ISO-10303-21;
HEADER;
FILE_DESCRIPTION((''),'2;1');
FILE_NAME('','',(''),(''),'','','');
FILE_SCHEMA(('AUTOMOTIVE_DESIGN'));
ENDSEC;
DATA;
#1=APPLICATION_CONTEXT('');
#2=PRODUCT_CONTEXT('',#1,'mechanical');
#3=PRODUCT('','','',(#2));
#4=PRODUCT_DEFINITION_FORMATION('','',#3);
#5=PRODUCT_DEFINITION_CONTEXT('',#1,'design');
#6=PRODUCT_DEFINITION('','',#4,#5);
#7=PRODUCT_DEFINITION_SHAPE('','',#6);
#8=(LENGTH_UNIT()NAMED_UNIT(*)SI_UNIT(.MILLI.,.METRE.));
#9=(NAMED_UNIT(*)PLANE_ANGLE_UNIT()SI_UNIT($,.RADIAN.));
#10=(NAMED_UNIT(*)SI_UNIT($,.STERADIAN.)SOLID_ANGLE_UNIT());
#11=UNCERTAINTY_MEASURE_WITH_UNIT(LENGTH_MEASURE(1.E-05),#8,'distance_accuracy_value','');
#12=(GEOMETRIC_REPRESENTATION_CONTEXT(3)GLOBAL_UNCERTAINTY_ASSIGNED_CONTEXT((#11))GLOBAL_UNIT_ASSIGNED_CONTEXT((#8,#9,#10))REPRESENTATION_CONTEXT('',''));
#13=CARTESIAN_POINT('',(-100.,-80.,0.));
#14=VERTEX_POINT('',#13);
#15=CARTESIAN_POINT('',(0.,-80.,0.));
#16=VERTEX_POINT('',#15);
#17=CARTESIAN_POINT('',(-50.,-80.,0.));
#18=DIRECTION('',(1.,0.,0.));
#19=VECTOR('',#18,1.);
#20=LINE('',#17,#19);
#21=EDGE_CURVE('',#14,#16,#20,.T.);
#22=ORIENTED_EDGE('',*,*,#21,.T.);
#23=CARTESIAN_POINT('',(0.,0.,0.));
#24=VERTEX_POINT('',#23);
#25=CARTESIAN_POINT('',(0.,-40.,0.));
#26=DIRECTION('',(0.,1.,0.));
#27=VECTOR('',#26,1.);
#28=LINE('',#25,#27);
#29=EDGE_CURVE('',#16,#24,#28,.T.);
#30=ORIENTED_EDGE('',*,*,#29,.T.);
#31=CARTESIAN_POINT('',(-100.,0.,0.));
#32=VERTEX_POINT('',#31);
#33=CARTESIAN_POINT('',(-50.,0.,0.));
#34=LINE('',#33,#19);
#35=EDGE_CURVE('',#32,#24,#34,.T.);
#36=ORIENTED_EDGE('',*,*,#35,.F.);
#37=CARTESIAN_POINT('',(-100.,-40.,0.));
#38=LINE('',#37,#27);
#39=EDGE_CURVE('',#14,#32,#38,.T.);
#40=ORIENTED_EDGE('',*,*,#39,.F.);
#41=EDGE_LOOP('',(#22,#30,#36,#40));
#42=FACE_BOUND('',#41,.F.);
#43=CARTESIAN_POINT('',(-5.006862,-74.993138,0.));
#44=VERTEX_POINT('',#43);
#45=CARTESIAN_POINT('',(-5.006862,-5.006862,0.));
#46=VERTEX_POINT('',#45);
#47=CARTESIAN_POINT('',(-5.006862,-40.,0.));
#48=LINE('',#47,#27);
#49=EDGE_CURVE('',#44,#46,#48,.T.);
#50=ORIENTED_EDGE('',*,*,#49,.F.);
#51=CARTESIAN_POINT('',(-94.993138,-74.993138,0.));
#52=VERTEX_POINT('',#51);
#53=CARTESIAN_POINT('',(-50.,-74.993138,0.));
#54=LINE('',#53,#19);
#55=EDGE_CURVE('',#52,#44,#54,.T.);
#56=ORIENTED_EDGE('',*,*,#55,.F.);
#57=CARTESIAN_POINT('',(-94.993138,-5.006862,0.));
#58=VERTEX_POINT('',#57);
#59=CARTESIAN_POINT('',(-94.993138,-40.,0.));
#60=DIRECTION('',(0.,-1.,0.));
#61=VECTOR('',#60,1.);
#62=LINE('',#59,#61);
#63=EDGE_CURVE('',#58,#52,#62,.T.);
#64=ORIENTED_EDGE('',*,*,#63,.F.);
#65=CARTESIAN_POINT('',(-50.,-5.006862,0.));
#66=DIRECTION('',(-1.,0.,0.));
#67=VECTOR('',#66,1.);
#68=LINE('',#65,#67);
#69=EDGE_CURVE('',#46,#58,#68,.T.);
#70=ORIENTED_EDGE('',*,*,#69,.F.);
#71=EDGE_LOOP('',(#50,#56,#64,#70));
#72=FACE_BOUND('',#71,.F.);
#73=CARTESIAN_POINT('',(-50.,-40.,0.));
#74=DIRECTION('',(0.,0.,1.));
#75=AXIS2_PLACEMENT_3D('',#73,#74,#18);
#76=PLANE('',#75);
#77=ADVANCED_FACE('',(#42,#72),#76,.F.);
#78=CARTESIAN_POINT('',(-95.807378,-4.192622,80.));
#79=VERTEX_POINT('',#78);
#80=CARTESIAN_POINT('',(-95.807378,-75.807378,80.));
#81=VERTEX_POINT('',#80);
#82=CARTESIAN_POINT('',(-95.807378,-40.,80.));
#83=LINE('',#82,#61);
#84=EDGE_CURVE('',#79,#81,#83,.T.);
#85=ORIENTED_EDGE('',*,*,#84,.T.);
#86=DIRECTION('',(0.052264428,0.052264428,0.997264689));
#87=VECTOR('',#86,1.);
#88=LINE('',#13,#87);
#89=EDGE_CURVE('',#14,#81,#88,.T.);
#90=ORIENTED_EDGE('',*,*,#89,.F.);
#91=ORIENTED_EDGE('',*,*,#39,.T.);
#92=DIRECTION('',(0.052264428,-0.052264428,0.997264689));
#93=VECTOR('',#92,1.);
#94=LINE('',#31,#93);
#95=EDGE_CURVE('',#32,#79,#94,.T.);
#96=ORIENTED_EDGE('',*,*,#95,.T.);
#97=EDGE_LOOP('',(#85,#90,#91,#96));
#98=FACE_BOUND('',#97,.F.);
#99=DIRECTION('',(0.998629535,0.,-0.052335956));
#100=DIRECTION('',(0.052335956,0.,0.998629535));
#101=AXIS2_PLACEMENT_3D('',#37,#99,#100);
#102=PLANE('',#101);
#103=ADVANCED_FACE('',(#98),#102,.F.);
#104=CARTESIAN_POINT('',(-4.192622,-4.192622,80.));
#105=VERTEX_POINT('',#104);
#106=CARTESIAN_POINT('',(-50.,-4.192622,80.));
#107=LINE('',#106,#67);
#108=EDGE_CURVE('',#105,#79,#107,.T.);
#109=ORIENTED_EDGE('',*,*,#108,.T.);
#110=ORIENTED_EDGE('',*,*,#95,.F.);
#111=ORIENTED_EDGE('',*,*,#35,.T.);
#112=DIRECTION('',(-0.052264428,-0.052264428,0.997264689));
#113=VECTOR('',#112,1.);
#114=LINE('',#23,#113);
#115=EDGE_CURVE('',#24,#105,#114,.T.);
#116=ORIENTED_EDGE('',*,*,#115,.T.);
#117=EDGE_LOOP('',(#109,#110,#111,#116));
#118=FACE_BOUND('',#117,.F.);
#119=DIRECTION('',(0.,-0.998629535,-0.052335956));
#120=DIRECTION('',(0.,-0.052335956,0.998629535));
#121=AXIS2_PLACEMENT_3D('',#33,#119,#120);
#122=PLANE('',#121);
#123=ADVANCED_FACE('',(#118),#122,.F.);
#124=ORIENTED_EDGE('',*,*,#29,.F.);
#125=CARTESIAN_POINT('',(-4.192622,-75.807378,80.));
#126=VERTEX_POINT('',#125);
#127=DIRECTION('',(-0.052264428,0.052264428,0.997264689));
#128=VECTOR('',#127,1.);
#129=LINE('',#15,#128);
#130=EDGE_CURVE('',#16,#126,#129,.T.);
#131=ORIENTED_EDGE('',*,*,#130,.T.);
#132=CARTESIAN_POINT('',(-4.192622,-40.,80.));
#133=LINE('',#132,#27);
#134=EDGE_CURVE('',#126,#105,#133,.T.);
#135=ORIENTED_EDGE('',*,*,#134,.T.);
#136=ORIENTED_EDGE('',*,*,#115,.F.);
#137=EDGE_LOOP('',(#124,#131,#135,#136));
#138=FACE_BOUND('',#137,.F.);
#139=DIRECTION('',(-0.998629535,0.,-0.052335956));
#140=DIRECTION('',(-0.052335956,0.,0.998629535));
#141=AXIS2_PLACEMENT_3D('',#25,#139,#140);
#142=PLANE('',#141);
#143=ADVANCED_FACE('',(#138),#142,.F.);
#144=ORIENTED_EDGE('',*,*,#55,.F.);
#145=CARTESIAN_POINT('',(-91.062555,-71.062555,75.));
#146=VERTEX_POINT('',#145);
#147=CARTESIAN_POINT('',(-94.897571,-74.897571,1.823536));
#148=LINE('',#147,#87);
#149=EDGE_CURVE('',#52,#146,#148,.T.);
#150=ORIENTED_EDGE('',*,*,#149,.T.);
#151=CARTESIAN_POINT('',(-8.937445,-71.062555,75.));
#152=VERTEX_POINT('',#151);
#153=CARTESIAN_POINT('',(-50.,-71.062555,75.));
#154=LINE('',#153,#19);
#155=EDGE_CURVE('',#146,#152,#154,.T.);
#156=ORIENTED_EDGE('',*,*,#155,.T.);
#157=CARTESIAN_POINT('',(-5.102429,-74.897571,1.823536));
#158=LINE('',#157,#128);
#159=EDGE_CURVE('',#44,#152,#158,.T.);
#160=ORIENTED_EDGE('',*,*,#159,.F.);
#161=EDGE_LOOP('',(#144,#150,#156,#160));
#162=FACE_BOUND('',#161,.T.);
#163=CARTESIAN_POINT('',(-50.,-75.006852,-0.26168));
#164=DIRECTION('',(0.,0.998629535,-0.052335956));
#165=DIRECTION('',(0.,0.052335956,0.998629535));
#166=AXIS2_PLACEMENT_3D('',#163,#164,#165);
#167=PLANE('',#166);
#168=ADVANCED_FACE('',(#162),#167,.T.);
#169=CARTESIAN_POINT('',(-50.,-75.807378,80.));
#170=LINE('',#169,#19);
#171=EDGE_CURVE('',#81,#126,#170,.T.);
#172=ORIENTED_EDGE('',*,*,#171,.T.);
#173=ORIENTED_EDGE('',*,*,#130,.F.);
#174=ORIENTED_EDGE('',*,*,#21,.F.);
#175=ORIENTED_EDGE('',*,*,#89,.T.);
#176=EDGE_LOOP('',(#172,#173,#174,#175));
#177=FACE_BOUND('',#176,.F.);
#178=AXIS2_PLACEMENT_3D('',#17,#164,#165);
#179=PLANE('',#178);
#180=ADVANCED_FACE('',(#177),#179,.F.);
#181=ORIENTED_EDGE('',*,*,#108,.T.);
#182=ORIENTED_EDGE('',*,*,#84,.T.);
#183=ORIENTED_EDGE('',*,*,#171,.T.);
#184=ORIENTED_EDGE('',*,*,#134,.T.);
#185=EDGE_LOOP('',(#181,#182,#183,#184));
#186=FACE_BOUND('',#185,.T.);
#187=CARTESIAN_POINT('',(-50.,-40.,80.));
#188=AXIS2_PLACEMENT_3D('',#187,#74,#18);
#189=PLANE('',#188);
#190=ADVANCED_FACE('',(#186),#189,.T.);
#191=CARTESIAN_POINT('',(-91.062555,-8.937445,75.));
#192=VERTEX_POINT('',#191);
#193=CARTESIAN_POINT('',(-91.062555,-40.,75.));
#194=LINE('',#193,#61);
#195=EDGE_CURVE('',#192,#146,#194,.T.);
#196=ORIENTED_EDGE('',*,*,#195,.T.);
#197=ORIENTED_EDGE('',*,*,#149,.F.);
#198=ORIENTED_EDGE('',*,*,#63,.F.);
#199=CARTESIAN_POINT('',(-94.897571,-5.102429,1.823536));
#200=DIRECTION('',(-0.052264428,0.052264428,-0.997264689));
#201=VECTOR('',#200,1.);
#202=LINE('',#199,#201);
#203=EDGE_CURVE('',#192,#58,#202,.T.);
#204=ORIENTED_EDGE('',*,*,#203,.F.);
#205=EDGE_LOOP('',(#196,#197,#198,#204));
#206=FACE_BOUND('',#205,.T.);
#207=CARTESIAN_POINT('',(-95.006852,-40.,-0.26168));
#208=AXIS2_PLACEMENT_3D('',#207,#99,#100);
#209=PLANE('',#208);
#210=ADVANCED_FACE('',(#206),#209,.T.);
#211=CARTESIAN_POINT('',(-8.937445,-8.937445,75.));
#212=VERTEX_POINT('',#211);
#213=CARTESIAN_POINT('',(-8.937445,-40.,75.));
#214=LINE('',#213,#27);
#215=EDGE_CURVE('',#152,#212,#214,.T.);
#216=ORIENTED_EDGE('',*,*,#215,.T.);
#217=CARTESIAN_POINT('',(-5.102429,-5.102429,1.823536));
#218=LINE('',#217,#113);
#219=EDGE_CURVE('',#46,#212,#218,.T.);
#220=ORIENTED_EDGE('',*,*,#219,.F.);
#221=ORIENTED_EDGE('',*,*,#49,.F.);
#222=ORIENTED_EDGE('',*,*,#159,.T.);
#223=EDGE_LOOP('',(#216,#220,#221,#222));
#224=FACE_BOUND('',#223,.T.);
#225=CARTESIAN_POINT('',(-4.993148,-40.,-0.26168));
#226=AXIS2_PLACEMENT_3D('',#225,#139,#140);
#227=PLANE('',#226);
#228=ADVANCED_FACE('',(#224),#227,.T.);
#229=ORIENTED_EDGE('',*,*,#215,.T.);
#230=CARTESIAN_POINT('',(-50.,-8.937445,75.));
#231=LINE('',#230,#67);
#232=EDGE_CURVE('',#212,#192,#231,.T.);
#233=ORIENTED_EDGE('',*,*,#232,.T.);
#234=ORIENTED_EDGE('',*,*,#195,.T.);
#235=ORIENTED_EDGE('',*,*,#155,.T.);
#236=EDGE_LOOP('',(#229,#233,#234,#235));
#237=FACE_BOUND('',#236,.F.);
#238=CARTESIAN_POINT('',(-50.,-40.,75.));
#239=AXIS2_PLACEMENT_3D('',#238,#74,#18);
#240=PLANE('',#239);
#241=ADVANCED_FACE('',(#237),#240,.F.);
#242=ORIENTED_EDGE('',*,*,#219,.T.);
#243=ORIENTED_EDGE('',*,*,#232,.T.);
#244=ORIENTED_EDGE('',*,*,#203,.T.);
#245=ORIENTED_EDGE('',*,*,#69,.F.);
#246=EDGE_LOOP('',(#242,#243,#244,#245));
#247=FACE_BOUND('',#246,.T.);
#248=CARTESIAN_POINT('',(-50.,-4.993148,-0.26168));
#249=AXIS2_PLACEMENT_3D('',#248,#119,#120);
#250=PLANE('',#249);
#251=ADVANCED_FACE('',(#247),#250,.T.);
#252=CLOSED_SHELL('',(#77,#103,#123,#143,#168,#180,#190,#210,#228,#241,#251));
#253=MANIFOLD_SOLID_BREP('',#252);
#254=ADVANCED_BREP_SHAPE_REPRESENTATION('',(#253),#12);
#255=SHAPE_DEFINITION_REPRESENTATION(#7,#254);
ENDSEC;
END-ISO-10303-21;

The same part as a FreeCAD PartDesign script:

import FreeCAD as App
import Part
import Sketcher
from FreeCAD import Vector


def faces_at(feature, points):
    """Names of the faces that lie closest to the given points."""
    faces = feature.Shape.Faces
    near = lambda p: min(range(len(faces)), key=lambda i: faces[i].distToShape(Part.Vertex(*p))[0])
    return sorted({f"Face{near(p) + 1}" for p in points})


def add_polygon(sketch, points):
    """Adds a closed chain of lines whose ends are joined by coincident constraints."""
    first, n = sketch.GeometryCount, len(points)
    for a, b in zip(points, points[1:] + points[:1]):
        sketch.addGeometry(Part.LineSegment(App.Vector(*a, 0), App.Vector(*b, 0)), False)
    for i in range(n):
        sketch.addConstraint(Sketcher.Constraint("Coincident", first + i, 2, first + (i + 1) % n, 1))

doc = App.newDocument("Part")
body = doc.addObject("PartDesign::Body", "Body")

# Sketch on XY plane
sketch1 = body.newObject("Sketcher::SketchObject", "Sketch")
sketch1.AttachmentSupport = (doc.getObject("XY_Plane"), [""])
sketch1.MapMode = "FlatFace"
add_polygon(sketch1, [(-100, 0), (-100, -80), (0, -80), (0, 0)])  # lines 0-3
sketch1.addConstraint(Sketcher.Constraint("Vertical", 0))
sketch1.addConstraint(Sketcher.Constraint("Horizontal", 1))
sketch1.addConstraint(Sketcher.Constraint("Vertical", 2))
sketch1.addConstraint(Sketcher.Constraint("Horizontal", 3))
sketch1.addConstraint(Sketcher.Constraint("Coincident", 2, 2, -1, 1))
sketch1.addConstraint(Sketcher.Constraint("DistanceX", 1, 1, 1, 2, 100.0))
sketch1.addConstraint(Sketcher.Constraint("DistanceY", 0, 2, 0, 1, 80.0))
pad1 = body.newObject("PartDesign::Pad", "Pad")
pad1.Profile = sketch1
pad1.Length = 80
pad1.TaperAngle = -3
doc.recompute()

thickness = body.newObject("PartDesign::Thickness", "Thickness")
thickness.Base = (pad1, faces_at(pad1, [(-50, -40, 0)]))
thickness.Value = 5
thickness.Reversed = True
thickness.Join = "Arc"

doc.recompute()
